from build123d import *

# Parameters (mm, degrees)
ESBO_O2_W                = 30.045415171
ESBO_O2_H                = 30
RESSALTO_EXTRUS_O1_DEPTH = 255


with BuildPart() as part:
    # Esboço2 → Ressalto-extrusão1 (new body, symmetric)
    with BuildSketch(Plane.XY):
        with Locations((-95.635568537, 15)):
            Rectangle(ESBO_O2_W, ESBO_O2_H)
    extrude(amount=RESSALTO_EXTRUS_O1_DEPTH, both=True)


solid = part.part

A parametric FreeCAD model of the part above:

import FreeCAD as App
import Part
import Sketcher
Q = App.Units.Quantity

doc = App.newDocument("Part")
body = doc.addObject("PartDesign::Body", "Body")

sketch1 = body.newObject("Sketcher::SketchObject", "Sketch")
sketch1.AttachmentSupport = (doc.getObject("XY_Plane"), [""])
sketch1.MapMode = "FlatFace"
sketch1.addGeometry(Part.LineSegment(App.Vector(-111, 30, 0), App.Vector(-111, 0, 0)), False)
sketch1.addGeometry(Part.LineSegment(App.Vector(-111, 0, 0), App.Vector(-81, 0, 0)), False)
sketch1.addGeometry(Part.LineSegment(App.Vector(-81, 0, 0), App.Vector(-81, 30, 0)), False)
sketch1.addGeometry(Part.LineSegment(App.Vector(-81, 30, 0), App.Vector(-111, 30, 0)), False)
sketch1.addConstraint(Sketcher.Constraint("Coincident", 0, 2, 1, 1))
sketch1.addConstraint(Sketcher.Constraint("Coincident", 1, 2, 2, 1))
sketch1.addConstraint(Sketcher.Constraint("Coincident", 2, 2, 3, 1))
sketch1.addConstraint(Sketcher.Constraint("Coincident", 3, 2, 0, 1))
sketch1.addConstraint(Sketcher.Constraint("Vertical", 0))
sketch1.addConstraint(Sketcher.Constraint("Horizontal", 1))
sketch1.addConstraint(Sketcher.Constraint("Vertical", 2))
sketch1.addConstraint(Sketcher.Constraint("Horizontal", 3))
sketch1.addConstraint(Sketcher.Constraint("PointOnObject", 0, 2, -1))
sketch1.addConstraint(Sketcher.Constraint("DistanceY", 0, 2, 0, 1, Q("30 mm")))
sketch1.addConstraint(Sketcher.Constraint("DistanceX", 1, 1, 1, 2, Q("30.045415 mm")))
sketch1.addConstraint(Sketcher.Constraint("DistanceX", 1, 2, -1, 1, Q("80.612861 mm")))
pad1 = body.newObject("PartDesign::Pad", "Pad")
pad1.Profile = sketch1
pad1.Length = 510
pad1.Midplane = True

doc.recompute()
